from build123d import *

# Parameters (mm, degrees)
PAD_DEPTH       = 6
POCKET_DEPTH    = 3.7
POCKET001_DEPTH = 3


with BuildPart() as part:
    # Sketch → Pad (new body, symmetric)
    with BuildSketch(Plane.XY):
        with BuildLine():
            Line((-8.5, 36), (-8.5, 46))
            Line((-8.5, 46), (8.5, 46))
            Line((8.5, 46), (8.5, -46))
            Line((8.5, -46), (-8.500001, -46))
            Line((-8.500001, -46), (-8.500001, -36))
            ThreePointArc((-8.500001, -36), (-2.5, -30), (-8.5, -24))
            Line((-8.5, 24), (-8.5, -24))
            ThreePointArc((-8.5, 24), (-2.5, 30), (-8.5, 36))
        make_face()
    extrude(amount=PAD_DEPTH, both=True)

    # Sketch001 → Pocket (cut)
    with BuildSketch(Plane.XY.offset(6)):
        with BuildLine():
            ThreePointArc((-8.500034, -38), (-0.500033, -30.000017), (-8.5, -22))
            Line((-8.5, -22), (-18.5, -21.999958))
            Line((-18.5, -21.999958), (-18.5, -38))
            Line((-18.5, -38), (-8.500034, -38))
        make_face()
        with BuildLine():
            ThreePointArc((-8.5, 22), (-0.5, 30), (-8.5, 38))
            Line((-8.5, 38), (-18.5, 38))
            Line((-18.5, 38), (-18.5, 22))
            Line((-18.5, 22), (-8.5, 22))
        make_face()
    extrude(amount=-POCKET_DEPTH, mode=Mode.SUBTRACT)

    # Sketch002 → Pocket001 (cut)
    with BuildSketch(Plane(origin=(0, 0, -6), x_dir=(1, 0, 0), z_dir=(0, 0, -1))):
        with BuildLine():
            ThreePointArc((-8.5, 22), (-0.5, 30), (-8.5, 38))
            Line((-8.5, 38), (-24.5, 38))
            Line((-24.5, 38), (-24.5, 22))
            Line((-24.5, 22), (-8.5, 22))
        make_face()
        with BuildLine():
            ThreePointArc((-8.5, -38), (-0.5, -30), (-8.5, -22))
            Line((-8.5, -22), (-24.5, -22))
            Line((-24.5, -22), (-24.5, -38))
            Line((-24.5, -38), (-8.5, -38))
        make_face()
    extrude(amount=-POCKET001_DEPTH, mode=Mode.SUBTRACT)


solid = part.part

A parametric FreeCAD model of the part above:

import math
import FreeCAD as App
import Part
import Sketcher
Q = App.Units.Quantity

doc = App.newDocument("Part")
params = doc.addObject("Spreadsheet::Sheet", "Params")
for row, (alias, value) in enumerate([
    ("sketch1_radius", "6 mm"),
    ("sketch1_width", "17.000001 mm"),
    ("sketch1_height", "10 mm"),
    ("sketch1_height2", "48 mm"),
    ("pad1_length", "12 mm"),
    ("sketch2_radius", "8 mm"),
    ("sketch2_width", "10 mm"),
    ("pocket1_length", "3.7 mm"),
    ("sketch3_radius", "8 mm"),
    ("pocket2_length", "3 mm"),
], start=1):
    params.set(f"A{row}", alias)
    params.set(f"B{row}", "=" + value)
    params.setAlias(f"B{row}", alias)

body = doc.addObject("PartDesign::Body", "Body")

sketch1 = body.newObject("Sketcher::SketchObject", "Sketch")
sketch1.AttachmentSupport = (doc.getObject("XY_Plane"), [""])
sketch1.MapMode = "FlatFace"
sketch1.addGeometry(Part.LineSegment(App.Vector(-8, 46, 0), App.Vector(-8, 36, 0)), False)
sketch1.addGeometry(Part.ArcOfCircle(Part.Circle(App.Vector(-8, 30, 0), App.Vector(0, 0, 1), 6), math.radians(-90), math.radians(90)), False)
sketch1.addGeometry(Part.LineSegment(App.Vector(-8, 24, 0), App.Vector(-8, -24, 0)), False)
sketch1.addGeometry(Part.ArcOfCircle(Part.Circle(App.Vector(-8, -30, 0), App.Vector(0, 0, 1), 6), math.radians(-90), math.radians(90)), False)
sketch1.addGeometry(Part.LineSegment(App.Vector(-9, -36, 0), App.Vector(-9, -46, 0)), False)
sketch1.addGeometry(Part.LineSegment(App.Vector(-9, -46, 0), App.Vector(8, -46, 0)), False)
sketch1.addGeometry(Part.LineSegment(App.Vector(8, -46, 0), App.Vector(8, 46, 0)), False)
sketch1.addGeometry(Part.LineSegment(App.Vector(8, 46, 0), App.Vector(-8, 46, 0)), False)
sketch1.addConstraint(Sketcher.Constraint("Coincident", 0, 2, 1, 2))
sketch1.addConstraint(Sketcher.Constraint("Coincident", 1, 1, 2, 1))
sketch1.addConstraint(Sketcher.Constraint("Coincident", 2, 2, 3, 2))
sketch1.addConstraint(Sketcher.Constraint("Coincident", 3, 1, 4, 1))
sketch1.addConstraint(Sketcher.Constraint("Coincident", 4, 2, 5, 1))
sketch1.addConstraint(Sketcher.Constraint("Coincident", 5, 2, 6, 1))
sketch1.addConstraint(Sketcher.Constraint("Coincident", 6, 2, 7, 1))
sketch1.addConstraint(Sketcher.Constraint("Coincident", 7, 2, 0, 1))
sketch1.addConstraint(Sketcher.Constraint("Vertical", 0))
sketch1.addConstraint(Sketcher.Constraint("Vertical", 2))
sketch1.addConstraint(Sketcher.Constraint("Vertical", 4))
sketch1.addConstraint(Sketcher.Constraint("Horizontal", 5))
sketch1.addConstraint(Sketcher.Constraint("Vertical", 6))
sketch1.addConstraint(Sketcher.Constraint("Horizontal", 7))
sketch1.addConstraint(Sketcher.Constraint("Equal", 1, 3))
sketch1.addConstraint(Sketcher.Constraint("Symmetric", 4, 2, 6, 2, -1, 1))
sketch1.addConstraint(Sketcher.Constraint("Symmetric", 1, 3, 3, 3, -1))
sketch1.addConstraint(Sketcher.Constraint("Vertical", 3, 3, 0, 2))
sketch1.addConstraint(Sketcher.Constraint("Vertical", 0, 2, 1, 1))
sketch1.addConstraint(Sketcher.Constraint("Vertical", 2, 2, 3, 1))
sketch1.addConstraint(Sketcher.Constraint("Radius", 1, Q("6 mm")))
sketch1.addConstraint(Sketcher.Constraint("DistanceX", 5, 1, 5, 2, Q("17.000001 mm")))
sketch1.addConstraint(Sketcher.Constraint("DistanceY", 0, 2, 0, 1, Q("10 mm")))
sketch1.addConstraint(Sketcher.Constraint("DistanceY", 2, 2, 2, 1, Q("48 mm")))
sketch1.setExpression("Constraints[20]", "Params.sketch1_radius")
sketch1.setExpression("Constraints[21]", "Params.sketch1_width")
sketch1.setExpression("Constraints[22]", "Params.sketch1_height")
sketch1.setExpression("Constraints[23]", "Params.sketch1_height2")
pad1 = body.newObject("PartDesign::Pad", "Pad")
pad1.Profile = sketch1
pad1.setExpression("Length", "Params.pad1_length")
pad1.Midplane = True

sketch2 = body.newObject("Sketcher::SketchObject", "Sketch001")
sketch2.AttachmentSupport = (doc.getObject("XY_Plane"), [""])
sketch2.MapMode = "FlatFace"
sketch2.AttachmentOffset = App.Placement(App.Vector(0, 0, 6), App.Rotation())
sketch2.addGeometry(Part.ArcOfCircle(Part.Circle(App.Vector(-9, -30, 0), App.Vector(0, 0, 1), 8), math.radians(-90), math.radians(90)), False)
sketch2.addGeometry(Part.LineSegment(App.Vector(-8, -22, 0), App.Vector(-18, -22, 0)), False)
sketch2.addGeometry(Part.LineSegment(App.Vector(-18, -22, 0), App.Vector(-18, -38, 0)), False)
sketch2.addGeometry(Part.LineSegment(App.Vector(-18, -38, 0), App.Vector(-9, -38, 0)), False)
sketch2.addGeometry(Part.ArcOfCircle(Part.Circle(App.Vector(-8, 30, 0), App.Vector(0, 0, 1), 8), math.radians(-90), math.radians(90)), False)
sketch2.addGeometry(Part.LineSegment(App.Vector(-8, 38, 0), App.Vector(-18, 38, 0)), False)
sketch2.addGeometry(Part.LineSegment(App.Vector(-18, 38, 0), App.Vector(-18, 22, 0)), False)
sketch2.addGeometry(Part.LineSegment(App.Vector(-18, 22, 0), App.Vector(-8, 22, 0)), False)
sketch2.addConstraint(Sketcher.Constraint("Tangent", 0, 2, 1, 1))
sketch2.addConstraint(Sketcher.Constraint("Coincident", 1, 2, 2, 1))
sketch2.addConstraint(Sketcher.Constraint("Coincident", 2, 2, 3, 1))
sketch2.addConstraint(Sketcher.Constraint("Tangent", 3, 2, 0, 1))
sketch2.addConstraint(Sketcher.Constraint("Tangent", 4, 2, 5, 1))
sketch2.addConstraint(Sketcher.Constraint("Coincident", 5, 2, 6, 1))
sketch2.addConstraint(Sketcher.Constraint("Coincident", 6, 2, 7, 1))
sketch2.addConstraint(Sketcher.Constraint("Tangent", 7, 2, 4, 1))
sketch2.addConstraint(Sketcher.Constraint("Vertical", 2))
sketch2.addConstraint(Sketcher.Constraint("Horizontal", 3))
sketch2.addConstraint(Sketcher.Constraint("Horizontal", 5))
sketch2.addConstraint(Sketcher.Constraint("Vertical", 6))
sketch2.addConstraint(Sketcher.Constraint("Horizontal", 7))
sketch2.addConstraint(Sketcher.Constraint("Equal", 0, 4))
sketch2.addConstraint(Sketcher.Constraint("Symmetric", 2, 2, 5, 2, -1))
sketch2.addConstraint(Sketcher.Constraint("Vertical", 4, 3, 0, 2))
sketch2.addConstraint(Sketcher.Constraint("Radius", 0, Q("8 mm")))
sketch2.addConstraint(Sketcher.Constraint("DistanceX", 5, 2, 5, 1, Q("10 mm")))
sketch2.addConstraint(Sketcher.Constraint("DistanceY", 0, 3, -1, 1, Q("30 mm")))
sketch2.addConstraint(Sketcher.Constraint("DistanceX", 4, 3, -1, 1, Q("8.5 mm")))
sketch2.addConstraint(Sketcher.Constraint("DistanceX", 3, 1, 3, 2, Q("9.999966 mm")))
sketch2.setExpression("Constraints[16]", "Params.sketch2_radius")
sketch2.setExpression("Constraints[17]", "Params.sketch2_width")
pocket1 = body.newObject("PartDesign::Pocket", "Pocket")
pocket1.Profile = sketch2
pocket1.setExpression("Length", "Params.pocket1_length")

sketch3 = body.newObject("Sketcher::SketchObject", "Sketch002")
sketch3.AttachmentSupport = (doc.getObject("XY_Plane"), [""])
sketch3.MapMode = "FlatFace"
sketch3.AttachmentOffset = App.Placement(App.Vector(0, 0, -6), App.Rotation())
sketch3.addGeometry(Part.ArcOfCircle(Part.Circle(App.Vector(-8, -30, 0), App.Vector(0, 0, 1), 8), math.radians(-90), math.radians(90)), False)
sketch3.addGeometry(Part.LineSegment(App.Vector(-8, -38, 0), App.Vector(-24, -38, 0)), False)
sketch3.addGeometry(Part.LineSegment(App.Vector(-24, -38, 0), App.Vector(-24, -22, 0)), False)
sketch3.addGeometry(Part.LineSegment(App.Vector(-24, -22, 0), App.Vector(-8, -22, 0)), False)
sketch3.addGeometry(Part.ArcOfCircle(Part.Circle(App.Vector(-8, 30, 0), App.Vector(0, 0, 1), 8), math.radians(-90), math.radians(90)), False)
sketch3.addGeometry(Part.LineSegment(App.Vector(-8, 22, 0), App.Vector(-24, 22, 0)), False)
sketch3.addGeometry(Part.LineSegment(App.Vector(-24, 22, 0), App.Vector(-24, 38, 0)), False)
sketch3.addGeometry(Part.LineSegment(App.Vector(-24, 38, 0), App.Vector(-8, 38, 0)), False)
sketch3.addConstraint(Sketcher.Constraint("Tangent", 0, 1, 1, 1))
sketch3.addConstraint(Sketcher.Constraint("Coincident", 1, 2, 2, 1))
sketch3.addConstraint(Sketcher.Constraint("Coincident", 2, 2, 3, 1))
sketch3.addConstraint(Sketcher.Constraint("Tangent", 3, 2, 0, 2))
sketch3.addConstraint(Sketcher.Constraint("Tangent", 4, 1, 5, 1))
sketch3.addConstraint(Sketcher.Constraint("Coincident", 5, 2, 6, 1))
sketch3.addConstraint(Sketcher.Constraint("Coincident", 6, 2, 7, 1))
sketch3.addConstraint(Sketcher.Constraint("Tangent", 7, 2, 4, 2))
sketch3.addConstraint(Sketcher.Constraint("Horizontal", 1))
sketch3.addConstraint(Sketcher.Constraint("Vertical", 2))
sketch3.addConstraint(Sketcher.Constraint("Horizontal", 3))
sketch3.addConstraint(Sketcher.Constraint("Horizontal", 5))
sketch3.addConstraint(Sketcher.Constraint("Vertical", 6))
sketch3.addConstraint(Sketcher.Constraint("Horizontal", 7))
sketch3.addConstraint(Sketcher.Constraint("Equal", 0, 4))
sketch3.addConstraint(Sketcher.Constraint("Symmetric", 0, 3, 4, 3, -1))
sketch3.addConstraint(Sketcher.Constraint("Vertical", 2, 2, 5, 2))
sketch3.addConstraint(Sketcher.Constraint("Equal", 7, 2))
sketch3.addConstraint(Sketcher.Constraint("Radius", 0, Q("8 mm")))
sketch3.addConstraint(Sketcher.Constraint("DistanceY", 0, 3, -1, 1, Q("30 mm")))
sketch3.addConstraint(Sketcher.Constraint("DistanceX", 0, 3, -1, 1, Q("8.5 mm")))
sketch3.setExpression("Constraints[18]", "Params.sketch3_radius")
pocket2 = body.newObject("PartDesign::Pocket", "Pocket001")
pocket2.Profile = sketch3
pocket2.setExpression("Length", "Params.pocket2_length")
pocket2.Reversed = True

doc.recompute()
